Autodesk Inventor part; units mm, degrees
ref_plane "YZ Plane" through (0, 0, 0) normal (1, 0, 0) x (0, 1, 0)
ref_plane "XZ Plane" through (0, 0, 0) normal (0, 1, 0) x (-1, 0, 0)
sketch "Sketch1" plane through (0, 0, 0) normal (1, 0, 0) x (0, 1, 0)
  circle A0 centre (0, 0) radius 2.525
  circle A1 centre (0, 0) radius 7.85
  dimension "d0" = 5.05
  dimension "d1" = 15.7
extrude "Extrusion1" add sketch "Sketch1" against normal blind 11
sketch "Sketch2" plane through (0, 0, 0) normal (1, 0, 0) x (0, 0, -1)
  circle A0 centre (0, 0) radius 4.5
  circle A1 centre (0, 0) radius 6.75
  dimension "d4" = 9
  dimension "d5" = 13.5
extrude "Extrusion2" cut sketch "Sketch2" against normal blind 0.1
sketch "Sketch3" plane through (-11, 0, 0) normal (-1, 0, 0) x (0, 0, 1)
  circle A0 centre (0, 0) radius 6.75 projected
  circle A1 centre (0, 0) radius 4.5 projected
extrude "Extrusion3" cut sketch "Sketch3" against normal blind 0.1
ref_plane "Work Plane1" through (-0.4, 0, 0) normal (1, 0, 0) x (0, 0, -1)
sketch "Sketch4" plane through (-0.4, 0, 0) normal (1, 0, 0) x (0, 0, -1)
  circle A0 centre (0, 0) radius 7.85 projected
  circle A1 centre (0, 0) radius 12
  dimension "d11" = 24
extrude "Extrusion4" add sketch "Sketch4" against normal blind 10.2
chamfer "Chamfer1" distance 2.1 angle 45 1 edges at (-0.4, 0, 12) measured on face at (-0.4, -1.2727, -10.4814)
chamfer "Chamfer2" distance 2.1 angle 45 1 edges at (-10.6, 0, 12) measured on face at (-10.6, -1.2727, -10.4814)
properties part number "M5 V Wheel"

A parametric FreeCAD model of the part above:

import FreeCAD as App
import Part
import Sketcher

V = App.Vector
Q = App.Units.Quantity


def edges_at(feature, points):
    """Names of the edges that pass closest to the given points."""
    edges = feature.Shape.Edges
    near = lambda p: min(range(len(edges)), key=lambda i: edges[i].distToShape(Part.Vertex(*p))[0])
    return sorted({f"Edge{near(p) + 1}" for p in points})

doc = App.newDocument("Part")
body = doc.addObject("PartDesign::Body", "Body")

# Sketch on YZ plane
sketch1 = doc.addObject("Sketcher::SketchObject", "Sketch")
body.addObject(sketch1)
sketch1.AttachmentSupport = (doc.YZ_Plane, [""])
sketch1.MapMode = "FlatFace"
sketch1.addGeometry(Part.Circle(V(0, 0, 0), V(0, 0, 1), 7.85), False)
sketch1.addGeometry(Part.Circle(V(0, 0, 0), V(0, 0, 1), 2.525), False)
sketch1.addConstraint(Sketcher.Constraint("Coincident", 0, 3, -1, 1))
sketch1.addConstraint(Sketcher.Constraint("Coincident", 1, 3, -1, 1))
sketch1.addConstraint(Sketcher.Constraint("Diameter", 0, Q("15.7 mm")))
sketch1.addConstraint(Sketcher.Constraint("Diameter", 1, Q("5.05 mm")))
pad1 = doc.addObject("PartDesign::Pad", "Pad")
body.addObject(pad1)
pad1.Profile = sketch1
pad1.Length = 11
pad1.Reversed = True

# Sketch on YZ plane
sketch2 = doc.addObject("Sketcher::SketchObject", "Sketch001")
body.addObject(sketch2)
sketch2.AttachmentSupport = (doc.YZ_Plane, [""])
sketch2.MapMode = "FlatFace"
sketch2.addGeometry(Part.Circle(V(0, 0, 0), V(0, 0, 1), 6.75), False)
sketch2.addGeometry(Part.Circle(V(0, 0, 0), V(0, 0, 1), 4.5), False)
sketch2.addConstraint(Sketcher.Constraint("Coincident", 0, 3, -1, 1))
sketch2.addConstraint(Sketcher.Constraint("Coincident", 1, 3, -1, 1))
sketch2.addConstraint(Sketcher.Constraint("Diameter", 1, Q("9 mm")))
sketch2.addConstraint(Sketcher.Constraint("Diameter", 0, Q("13.5 mm")))
pocket1 = doc.addObject("PartDesign::Pocket", "Pocket")
body.addObject(pocket1)
pocket1.Profile = sketch2
pocket1.Length = 0.1

# Sketch on YZ plane
sketch3 = doc.addObject("Sketcher::SketchObject", "Sketch002")
body.addObject(sketch3)
sketch3.AttachmentSupport = (doc.YZ_Plane, [""])
sketch3.MapMode = "FlatFace"
sketch3.AttachmentOffset = App.Placement(V(0, 0, -11), App.Rotation())
sketch3.addGeometry(Part.Circle(V(0, 0, 0), V(0, 0, 1), 6.75), False)
sketch3.addGeometry(Part.Circle(V(0, 0, 0), V(0, 0, 1), 4.5), False)
sketch3.addConstraint(Sketcher.Constraint("Coincident", 0, 3, -1, 1))
sketch3.addConstraint(Sketcher.Constraint("Coincident", 1, 3, -1, 1))
sketch3.addConstraint(Sketcher.Constraint("Diameter", 1, Q("9 mm")))
sketch3.addConstraint(Sketcher.Constraint("Diameter", 0, Q("13.5 mm")))
pocket2 = doc.addObject("PartDesign::Pocket", "Pocket001")
body.addObject(pocket2)
pocket2.Profile = sketch3
pocket2.Length = 0.1
pocket2.Reversed = True

# Sketch on YZ plane
sketch4 = doc.addObject("Sketcher::SketchObject", "Sketch003")
body.addObject(sketch4)
sketch4.AttachmentSupport = (doc.YZ_Plane, [""])
sketch4.MapMode = "FlatFace"
sketch4.AttachmentOffset = App.Placement(V(0, 0, -0.4), App.Rotation())
sketch4.addGeometry(Part.Circle(V(0, 0, 0), V(0, 0, 1), 12), False)
sketch4.addGeometry(Part.Circle(V(0, 0, 0), V(0, 0, 1), 7.85), False)
sketch4.addConstraint(Sketcher.Constraint("Coincident", 0, 3, -1, 1))
sketch4.addConstraint(Sketcher.Constraint("Coincident", 1, 3, -1, 1))
sketch4.addConstraint(Sketcher.Constraint("Diameter", 0, Q("24 mm")))
sketch4.addConstraint(Sketcher.Constraint("Diameter", 1, Q("15.7 mm")))
pad2 = doc.addObject("PartDesign::Pad", "Pad001")
body.addObject(pad2)
pad2.Profile = sketch4
pad2.Length = 10.2
pad2.Reversed = True
doc.recompute()

chamfer = doc.addObject("PartDesign::Chamfer", "Chamfer")
body.addObject(chamfer)
chamfer.Base = (pad2, edges_at(pad2, [(-0.4, 0, 12)]))
chamfer.Size = 2.1
doc.recompute()

chamfer2 = doc.addObject("PartDesign::Chamfer", "Chamfer001")
body.addObject(chamfer2)
chamfer2.Base = (chamfer, edges_at(chamfer, [(-10.6, 0, 12)]))
chamfer2.Size = 2.1

doc.recompute()
